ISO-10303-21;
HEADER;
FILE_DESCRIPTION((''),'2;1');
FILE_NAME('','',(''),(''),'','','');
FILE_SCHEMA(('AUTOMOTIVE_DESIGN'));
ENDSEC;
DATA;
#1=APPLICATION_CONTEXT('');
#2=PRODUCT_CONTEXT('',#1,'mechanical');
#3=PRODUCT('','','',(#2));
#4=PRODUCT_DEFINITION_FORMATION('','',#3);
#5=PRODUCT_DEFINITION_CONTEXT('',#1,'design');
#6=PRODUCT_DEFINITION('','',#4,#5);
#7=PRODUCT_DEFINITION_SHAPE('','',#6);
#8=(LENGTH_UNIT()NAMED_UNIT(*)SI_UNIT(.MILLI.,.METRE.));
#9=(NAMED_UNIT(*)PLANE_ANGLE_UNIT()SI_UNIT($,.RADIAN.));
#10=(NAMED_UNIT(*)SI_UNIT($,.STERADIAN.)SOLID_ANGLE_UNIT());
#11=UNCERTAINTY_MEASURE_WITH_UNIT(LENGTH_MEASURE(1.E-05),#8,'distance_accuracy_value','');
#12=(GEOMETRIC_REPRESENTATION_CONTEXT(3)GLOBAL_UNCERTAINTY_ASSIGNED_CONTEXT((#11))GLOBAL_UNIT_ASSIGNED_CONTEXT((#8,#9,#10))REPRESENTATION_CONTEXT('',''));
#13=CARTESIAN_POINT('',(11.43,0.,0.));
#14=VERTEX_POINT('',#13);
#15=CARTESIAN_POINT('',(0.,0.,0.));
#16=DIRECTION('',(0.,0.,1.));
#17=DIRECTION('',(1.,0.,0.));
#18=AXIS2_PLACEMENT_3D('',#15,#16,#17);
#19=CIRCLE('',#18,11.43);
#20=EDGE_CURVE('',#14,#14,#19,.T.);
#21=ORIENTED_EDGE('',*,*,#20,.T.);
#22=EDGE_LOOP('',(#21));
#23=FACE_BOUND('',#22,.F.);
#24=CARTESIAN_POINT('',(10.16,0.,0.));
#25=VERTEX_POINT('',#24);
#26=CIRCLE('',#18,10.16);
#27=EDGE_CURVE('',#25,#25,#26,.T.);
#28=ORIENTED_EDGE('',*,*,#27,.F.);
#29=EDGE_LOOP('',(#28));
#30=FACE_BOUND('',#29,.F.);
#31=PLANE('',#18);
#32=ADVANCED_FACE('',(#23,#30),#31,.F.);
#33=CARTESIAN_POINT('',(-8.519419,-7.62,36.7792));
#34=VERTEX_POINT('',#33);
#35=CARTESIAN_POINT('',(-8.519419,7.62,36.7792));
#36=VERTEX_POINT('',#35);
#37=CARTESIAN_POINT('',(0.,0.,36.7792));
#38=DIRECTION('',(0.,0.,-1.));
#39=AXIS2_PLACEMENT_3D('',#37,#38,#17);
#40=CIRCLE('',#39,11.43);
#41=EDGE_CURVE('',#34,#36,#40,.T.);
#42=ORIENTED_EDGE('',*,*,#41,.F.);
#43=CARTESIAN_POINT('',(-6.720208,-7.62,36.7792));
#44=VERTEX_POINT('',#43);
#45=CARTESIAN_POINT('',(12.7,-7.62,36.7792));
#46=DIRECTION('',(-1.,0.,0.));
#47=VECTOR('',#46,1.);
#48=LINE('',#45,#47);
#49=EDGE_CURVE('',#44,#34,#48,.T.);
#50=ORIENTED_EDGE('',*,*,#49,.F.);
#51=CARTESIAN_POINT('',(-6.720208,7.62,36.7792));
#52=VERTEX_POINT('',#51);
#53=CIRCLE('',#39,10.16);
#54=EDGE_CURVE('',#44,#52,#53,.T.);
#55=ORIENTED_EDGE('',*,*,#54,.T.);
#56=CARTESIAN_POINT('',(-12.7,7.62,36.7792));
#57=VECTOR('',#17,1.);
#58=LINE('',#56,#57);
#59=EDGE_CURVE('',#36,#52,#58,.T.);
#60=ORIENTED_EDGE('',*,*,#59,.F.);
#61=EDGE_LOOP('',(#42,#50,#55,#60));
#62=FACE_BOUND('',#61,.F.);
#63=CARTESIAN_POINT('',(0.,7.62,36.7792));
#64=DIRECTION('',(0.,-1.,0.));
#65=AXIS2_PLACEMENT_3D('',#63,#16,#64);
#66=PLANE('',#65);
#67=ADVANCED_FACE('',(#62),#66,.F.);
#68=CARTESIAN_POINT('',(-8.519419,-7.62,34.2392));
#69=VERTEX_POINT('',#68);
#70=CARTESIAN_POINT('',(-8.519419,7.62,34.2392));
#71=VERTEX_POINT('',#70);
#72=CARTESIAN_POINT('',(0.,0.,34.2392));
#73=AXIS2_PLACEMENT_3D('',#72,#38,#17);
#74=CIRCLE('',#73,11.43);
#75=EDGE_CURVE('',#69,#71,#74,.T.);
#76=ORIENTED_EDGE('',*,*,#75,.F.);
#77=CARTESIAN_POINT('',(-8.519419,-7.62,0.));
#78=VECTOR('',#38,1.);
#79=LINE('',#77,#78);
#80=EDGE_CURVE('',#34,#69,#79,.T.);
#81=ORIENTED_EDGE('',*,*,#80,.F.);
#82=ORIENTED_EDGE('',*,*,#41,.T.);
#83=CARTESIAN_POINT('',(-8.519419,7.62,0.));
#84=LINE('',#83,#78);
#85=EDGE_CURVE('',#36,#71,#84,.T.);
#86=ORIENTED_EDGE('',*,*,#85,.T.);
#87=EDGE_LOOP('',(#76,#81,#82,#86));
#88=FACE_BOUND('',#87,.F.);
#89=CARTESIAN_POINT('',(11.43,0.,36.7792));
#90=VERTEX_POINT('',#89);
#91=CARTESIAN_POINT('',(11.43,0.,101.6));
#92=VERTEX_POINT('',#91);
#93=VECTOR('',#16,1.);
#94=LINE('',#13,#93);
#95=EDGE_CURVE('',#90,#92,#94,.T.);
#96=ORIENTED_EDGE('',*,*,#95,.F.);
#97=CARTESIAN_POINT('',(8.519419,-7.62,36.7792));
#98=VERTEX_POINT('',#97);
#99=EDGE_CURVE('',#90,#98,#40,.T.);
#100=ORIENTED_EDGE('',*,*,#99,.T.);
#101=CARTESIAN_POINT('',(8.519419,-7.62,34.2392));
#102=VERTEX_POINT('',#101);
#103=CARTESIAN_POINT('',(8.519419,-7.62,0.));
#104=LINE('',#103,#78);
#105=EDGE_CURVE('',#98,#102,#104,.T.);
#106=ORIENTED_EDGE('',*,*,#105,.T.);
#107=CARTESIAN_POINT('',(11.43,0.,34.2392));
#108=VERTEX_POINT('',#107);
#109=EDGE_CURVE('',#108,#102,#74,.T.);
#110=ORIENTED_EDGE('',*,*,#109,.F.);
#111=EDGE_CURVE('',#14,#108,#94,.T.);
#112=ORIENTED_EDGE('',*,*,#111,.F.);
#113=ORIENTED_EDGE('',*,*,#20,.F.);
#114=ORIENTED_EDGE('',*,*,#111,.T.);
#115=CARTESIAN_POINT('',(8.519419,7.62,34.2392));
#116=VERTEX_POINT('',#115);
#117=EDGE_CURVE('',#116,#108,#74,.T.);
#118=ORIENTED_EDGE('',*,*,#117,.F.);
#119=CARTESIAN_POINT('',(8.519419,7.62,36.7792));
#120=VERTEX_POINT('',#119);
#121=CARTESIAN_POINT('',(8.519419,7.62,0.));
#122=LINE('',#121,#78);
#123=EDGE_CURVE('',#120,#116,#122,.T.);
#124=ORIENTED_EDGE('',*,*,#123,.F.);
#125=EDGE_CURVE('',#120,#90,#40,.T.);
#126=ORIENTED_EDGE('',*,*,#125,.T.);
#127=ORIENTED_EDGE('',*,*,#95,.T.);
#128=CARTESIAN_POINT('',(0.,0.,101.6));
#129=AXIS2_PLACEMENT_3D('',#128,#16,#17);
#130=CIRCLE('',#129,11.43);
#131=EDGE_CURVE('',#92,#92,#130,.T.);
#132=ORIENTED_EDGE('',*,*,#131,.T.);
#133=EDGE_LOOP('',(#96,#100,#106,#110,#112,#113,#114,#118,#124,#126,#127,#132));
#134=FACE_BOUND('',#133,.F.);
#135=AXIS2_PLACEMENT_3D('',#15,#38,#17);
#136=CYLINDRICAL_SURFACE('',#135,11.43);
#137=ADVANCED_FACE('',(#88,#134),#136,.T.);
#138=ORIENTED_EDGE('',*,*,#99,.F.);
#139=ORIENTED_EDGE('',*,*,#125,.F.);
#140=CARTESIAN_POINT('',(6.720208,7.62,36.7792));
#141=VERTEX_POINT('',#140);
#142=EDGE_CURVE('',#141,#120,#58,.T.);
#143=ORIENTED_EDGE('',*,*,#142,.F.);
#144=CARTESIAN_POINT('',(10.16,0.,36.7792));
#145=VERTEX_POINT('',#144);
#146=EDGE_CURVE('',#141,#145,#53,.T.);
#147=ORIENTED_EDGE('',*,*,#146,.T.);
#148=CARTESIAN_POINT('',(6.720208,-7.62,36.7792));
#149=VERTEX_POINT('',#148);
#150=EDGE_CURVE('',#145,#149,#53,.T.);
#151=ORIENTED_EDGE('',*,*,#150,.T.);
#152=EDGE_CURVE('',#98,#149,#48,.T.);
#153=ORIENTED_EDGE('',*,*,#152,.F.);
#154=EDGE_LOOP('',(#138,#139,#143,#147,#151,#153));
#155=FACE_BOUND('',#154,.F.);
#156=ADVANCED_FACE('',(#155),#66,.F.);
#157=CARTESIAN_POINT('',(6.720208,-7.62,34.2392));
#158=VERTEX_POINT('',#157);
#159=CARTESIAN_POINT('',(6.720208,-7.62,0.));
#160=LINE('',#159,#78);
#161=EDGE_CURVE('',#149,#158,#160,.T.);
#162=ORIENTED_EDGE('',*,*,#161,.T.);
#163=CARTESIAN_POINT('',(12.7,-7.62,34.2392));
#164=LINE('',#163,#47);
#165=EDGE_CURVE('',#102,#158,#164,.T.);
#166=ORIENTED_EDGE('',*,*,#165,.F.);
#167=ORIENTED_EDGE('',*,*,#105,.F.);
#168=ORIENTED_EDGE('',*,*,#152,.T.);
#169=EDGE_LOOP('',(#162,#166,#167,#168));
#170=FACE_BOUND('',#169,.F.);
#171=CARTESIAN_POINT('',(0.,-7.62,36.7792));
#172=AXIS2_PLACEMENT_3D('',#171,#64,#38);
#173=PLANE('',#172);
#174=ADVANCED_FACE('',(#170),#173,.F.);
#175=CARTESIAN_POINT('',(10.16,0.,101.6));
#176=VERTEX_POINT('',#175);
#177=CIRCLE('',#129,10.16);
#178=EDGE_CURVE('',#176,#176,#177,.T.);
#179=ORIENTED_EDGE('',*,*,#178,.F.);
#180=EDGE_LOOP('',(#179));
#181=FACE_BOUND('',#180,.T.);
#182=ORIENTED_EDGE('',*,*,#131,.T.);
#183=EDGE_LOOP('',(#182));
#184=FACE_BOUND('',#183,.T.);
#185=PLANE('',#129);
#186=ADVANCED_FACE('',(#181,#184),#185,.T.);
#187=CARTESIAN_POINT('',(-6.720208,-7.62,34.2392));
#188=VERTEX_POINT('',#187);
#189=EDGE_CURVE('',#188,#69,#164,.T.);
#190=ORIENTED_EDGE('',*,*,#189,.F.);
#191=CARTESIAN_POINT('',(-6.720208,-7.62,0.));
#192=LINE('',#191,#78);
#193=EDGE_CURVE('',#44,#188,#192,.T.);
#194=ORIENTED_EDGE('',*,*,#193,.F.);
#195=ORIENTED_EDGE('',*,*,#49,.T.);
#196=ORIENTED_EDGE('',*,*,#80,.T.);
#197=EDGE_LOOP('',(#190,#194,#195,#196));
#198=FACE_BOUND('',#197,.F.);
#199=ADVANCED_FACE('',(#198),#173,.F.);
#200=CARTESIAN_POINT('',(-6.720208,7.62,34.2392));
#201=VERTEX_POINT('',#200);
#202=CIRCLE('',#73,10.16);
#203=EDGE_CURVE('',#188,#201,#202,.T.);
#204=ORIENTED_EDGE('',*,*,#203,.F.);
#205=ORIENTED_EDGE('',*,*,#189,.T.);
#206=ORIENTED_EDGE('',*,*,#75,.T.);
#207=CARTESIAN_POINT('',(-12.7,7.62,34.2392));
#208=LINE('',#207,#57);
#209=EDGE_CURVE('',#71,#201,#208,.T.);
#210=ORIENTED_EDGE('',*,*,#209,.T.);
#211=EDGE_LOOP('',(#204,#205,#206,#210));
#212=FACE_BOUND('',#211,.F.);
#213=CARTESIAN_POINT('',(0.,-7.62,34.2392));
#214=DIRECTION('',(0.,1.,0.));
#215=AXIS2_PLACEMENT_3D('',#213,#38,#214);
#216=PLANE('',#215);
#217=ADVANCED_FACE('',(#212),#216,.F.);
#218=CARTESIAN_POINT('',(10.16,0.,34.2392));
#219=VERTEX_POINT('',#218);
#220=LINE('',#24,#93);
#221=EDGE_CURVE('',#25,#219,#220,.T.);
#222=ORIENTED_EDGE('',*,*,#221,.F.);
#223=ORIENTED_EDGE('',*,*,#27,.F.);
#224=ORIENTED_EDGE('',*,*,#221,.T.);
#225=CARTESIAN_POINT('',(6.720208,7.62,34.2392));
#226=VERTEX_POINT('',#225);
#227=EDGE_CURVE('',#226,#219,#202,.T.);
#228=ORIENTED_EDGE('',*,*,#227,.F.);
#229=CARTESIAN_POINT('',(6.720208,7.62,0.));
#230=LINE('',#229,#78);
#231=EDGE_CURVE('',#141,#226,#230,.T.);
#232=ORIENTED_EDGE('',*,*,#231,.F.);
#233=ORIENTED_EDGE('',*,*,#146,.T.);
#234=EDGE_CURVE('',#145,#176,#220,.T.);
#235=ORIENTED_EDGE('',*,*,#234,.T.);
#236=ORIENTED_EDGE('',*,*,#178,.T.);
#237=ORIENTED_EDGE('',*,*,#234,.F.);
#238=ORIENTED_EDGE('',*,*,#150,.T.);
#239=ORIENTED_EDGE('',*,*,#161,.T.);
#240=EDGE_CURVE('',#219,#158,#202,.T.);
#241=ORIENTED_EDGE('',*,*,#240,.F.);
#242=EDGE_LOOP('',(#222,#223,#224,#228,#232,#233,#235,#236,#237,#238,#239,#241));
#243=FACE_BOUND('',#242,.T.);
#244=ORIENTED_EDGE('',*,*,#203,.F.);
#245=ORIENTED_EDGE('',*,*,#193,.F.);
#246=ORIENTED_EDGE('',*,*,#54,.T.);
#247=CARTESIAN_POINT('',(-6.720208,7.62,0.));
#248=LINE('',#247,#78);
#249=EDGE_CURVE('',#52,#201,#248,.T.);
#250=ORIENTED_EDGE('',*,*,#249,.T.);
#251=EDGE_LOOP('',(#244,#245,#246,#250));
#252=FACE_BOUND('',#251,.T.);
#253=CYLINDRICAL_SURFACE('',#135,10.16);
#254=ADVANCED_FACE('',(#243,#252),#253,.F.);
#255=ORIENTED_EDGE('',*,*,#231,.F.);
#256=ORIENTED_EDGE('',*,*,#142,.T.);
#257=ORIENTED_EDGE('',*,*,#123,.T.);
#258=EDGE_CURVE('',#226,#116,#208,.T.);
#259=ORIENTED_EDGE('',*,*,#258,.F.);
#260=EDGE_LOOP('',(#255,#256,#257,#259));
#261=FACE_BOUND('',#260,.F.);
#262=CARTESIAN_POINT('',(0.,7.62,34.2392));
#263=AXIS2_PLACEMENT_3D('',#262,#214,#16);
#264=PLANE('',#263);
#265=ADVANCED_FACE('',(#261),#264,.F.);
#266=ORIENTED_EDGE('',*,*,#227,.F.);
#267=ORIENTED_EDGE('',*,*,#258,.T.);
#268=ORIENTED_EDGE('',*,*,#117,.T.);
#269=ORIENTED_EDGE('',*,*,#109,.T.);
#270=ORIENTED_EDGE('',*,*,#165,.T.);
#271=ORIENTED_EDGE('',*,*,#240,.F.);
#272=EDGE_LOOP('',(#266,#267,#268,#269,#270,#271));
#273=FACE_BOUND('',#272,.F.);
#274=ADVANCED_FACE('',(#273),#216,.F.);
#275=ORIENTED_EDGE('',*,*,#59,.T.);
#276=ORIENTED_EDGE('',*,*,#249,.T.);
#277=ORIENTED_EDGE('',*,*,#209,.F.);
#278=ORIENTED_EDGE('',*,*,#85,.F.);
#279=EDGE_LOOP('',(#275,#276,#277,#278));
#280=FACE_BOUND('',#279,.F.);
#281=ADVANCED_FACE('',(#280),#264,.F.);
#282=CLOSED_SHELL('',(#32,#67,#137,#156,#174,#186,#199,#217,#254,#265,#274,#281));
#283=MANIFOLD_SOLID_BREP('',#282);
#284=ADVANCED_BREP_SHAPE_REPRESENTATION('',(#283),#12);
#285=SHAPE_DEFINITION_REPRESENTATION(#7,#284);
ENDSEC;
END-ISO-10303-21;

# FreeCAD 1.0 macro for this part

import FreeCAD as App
import Part
import Sketcher
from FreeCAD import Vector
Q = App.Units.Quantity

doc = App.newDocument("Part")
body = doc.addObject("PartDesign::Body", "Body")

# Sketch on XY plane
sketch1 = doc.addObject("Sketcher::SketchObject", "Sketch")
body.addObject(sketch1)
sketch1.AttachmentSupport = (doc.XY_Plane, [""])
sketch1.MapMode = "FlatFace"
sketch1.addGeometry([
    Part.Circle(Vector(0, 0, 0), Vector(0, 0, 1), 11),
    Part.Circle(Vector(0, 0, 0), Vector(0, 0, 1), 10),
], False)
sketch1.addConstraint([
    Sketcher.Constraint("Coincident", 0, 3, -1, 1),
    Sketcher.Constraint("Coincident", 1, 3, -1, 1),
    Sketcher.Constraint("Diameter", 0, Q("0.9 in")),
    Sketcher.Constraint("Diameter", 1, Q("0.8 in")),
])
pad1 = doc.addObject("PartDesign::Pad", "Pad")
body.addObject(pad1)
pad1.Profile = sketch1
pad1.Length = Q("4 in")
body2 = doc.addObject("PartDesign::Body", "Body001")

# Sketch on YZ plane
sketch2 = doc.addObject("Sketcher::SketchObject", "Sketch001")
body2.addObject(sketch2)
sketch2.AttachmentSupport = (doc.getObject("YZ_Plane001"), [""])
sketch2.MapMode = "FlatFace"
sketch2.addGeometry([
    Part.LineSegment(Vector(-7.6, 34.2, 0), Vector(7.6, 34.2, 0)),
    Part.LineSegment(Vector(7.6, 34.2, 0), Vector(7.6, 36.8, 0)),
    Part.LineSegment(Vector(7.6, 36.8, 0), Vector(-7.6, 36.8, 0)),
    Part.LineSegment(Vector(-7.6, 36.8, 0), Vector(-7.6, 34.2, 0)),
], False)
sketch2.addConstraint([
    Sketcher.Constraint("Coincident", 0, 2, 1, 1),
    Sketcher.Constraint("Coincident", 1, 2, 2, 1),
    Sketcher.Constraint("Coincident", 2, 2, 3, 1),
    Sketcher.Constraint("Coincident", 3, 2, 0, 1),
    Sketcher.Constraint("Horizontal", 0),
    Sketcher.Constraint("Vertical", 1),
    Sketcher.Constraint("Horizontal", 2),
    Sketcher.Constraint("Vertical", 3),
    Sketcher.Constraint("DistanceX", 0, 1, 0, 2, Q("0.6 in")),
    Sketcher.Constraint("DistanceY", 1, 1, 1, 2, Q("0.1 in")),
    Sketcher.Constraint("DistanceX", -1, 1, 0, 2, Q("0.3 in")),
    Sketcher.Constraint("DistanceY", -1, 1, 0, 2, Q("1.348 in")),
])
pad2 = doc.addObject("PartDesign::Pad", "Pad001")
body2.addObject(pad2)
pad2.Profile = sketch2
pad2.Length = Q("1 in")
pad2.Midplane = True
doc.recompute()

boolean = doc.addObject("PartDesign::Boolean", "Boolean")
body.addObject(boolean)
boolean.Type = "Cut"
boolean.addObjects([body2])

doc.recompute()
